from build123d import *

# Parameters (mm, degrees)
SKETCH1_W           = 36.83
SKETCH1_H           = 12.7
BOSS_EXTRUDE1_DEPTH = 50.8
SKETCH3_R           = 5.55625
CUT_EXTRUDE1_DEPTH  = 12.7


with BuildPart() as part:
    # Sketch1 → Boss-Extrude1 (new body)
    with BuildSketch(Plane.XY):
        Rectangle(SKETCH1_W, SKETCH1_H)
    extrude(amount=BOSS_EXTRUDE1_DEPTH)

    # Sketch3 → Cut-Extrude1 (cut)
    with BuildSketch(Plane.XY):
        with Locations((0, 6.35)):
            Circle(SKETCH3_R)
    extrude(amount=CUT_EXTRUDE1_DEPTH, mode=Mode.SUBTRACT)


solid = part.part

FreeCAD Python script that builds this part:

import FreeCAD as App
import Part
import Sketcher
Q = App.Units.Quantity

doc = App.newDocument("Part")
body = doc.addObject("PartDesign::Body", "Body")

# Sketch on XY plane
sketch1 = body.newObject("Sketcher::SketchObject", "Sketch")
sketch1.AttachmentSupport = (doc.getObject("XY_Plane"), [""])
sketch1.MapMode = "FlatFace"
sketch1.addGeometry(Part.LineSegment(App.Vector(-18.415, 6.35, 0), App.Vector(-18.415, -6.35, 0)), False)
sketch1.addGeometry(Part.LineSegment(App.Vector(-18.415, -6.35, 0), App.Vector(18.415, -6.35, 0)), False)
sketch1.addGeometry(Part.LineSegment(App.Vector(18.415, -6.35, 0), App.Vector(18.415, 6.35, 0)), False)
sketch1.addGeometry(Part.LineSegment(App.Vector(18.415, 6.35, 0), App.Vector(-18.415, 6.35, 0)), False)
sketch1.addConstraint(Sketcher.Constraint("Coincident", 0, 2, 1, 1))
sketch1.addConstraint(Sketcher.Constraint("Coincident", 1, 2, 2, 1))
sketch1.addConstraint(Sketcher.Constraint("Coincident", 2, 2, 3, 1))
sketch1.addConstraint(Sketcher.Constraint("Coincident", 3, 2, 0, 1))
sketch1.addConstraint(Sketcher.Constraint("Vertical", 0))
sketch1.addConstraint(Sketcher.Constraint("Horizontal", 1))
sketch1.addConstraint(Sketcher.Constraint("Vertical", 2))
sketch1.addConstraint(Sketcher.Constraint("Horizontal", 3))
sketch1.addConstraint(Sketcher.Constraint("Symmetric", 0, 2, 2, 2, -1, 1))
sketch1.addConstraint(Sketcher.Constraint("DistanceY", 0, 2, 0, 1, Q("0.5 in")))
sketch1.addConstraint(Sketcher.Constraint("DistanceX", 1, 1, 1, 2, Q("1.45 in")))
pad1 = body.newObject("PartDesign::Pad", "Pad")
pad1.Profile = sketch1
pad1.Length = Q("2 in")

# Sketch on XY plane
sketch2 = body.newObject("Sketcher::SketchObject", "Sketch001")
sketch2.AttachmentSupport = (doc.getObject("XY_Plane"), [""])
sketch2.MapMode = "FlatFace"
sketch2.addGeometry(Part.Circle(App.Vector(0, 6.35, 0), App.Vector(0, 0, 1), 5.55625), False)
sketch2.addConstraint(Sketcher.Constraint("PointOnObject", 0, 3, -2))
sketch2.addConstraint(Sketcher.Constraint("Diameter", 0, Q("0.4375 in")))
sketch2.addConstraint(Sketcher.Constraint("DistanceY", -1, 1, 0, 3, Q("0.25 in")))
pocket1 = body.newObject("PartDesign::Pocket", "Pocket")
pocket1.Profile = sketch2
pocket1.Length = Q("0.5 in")
pocket1.Reversed = True

doc.recompute()
